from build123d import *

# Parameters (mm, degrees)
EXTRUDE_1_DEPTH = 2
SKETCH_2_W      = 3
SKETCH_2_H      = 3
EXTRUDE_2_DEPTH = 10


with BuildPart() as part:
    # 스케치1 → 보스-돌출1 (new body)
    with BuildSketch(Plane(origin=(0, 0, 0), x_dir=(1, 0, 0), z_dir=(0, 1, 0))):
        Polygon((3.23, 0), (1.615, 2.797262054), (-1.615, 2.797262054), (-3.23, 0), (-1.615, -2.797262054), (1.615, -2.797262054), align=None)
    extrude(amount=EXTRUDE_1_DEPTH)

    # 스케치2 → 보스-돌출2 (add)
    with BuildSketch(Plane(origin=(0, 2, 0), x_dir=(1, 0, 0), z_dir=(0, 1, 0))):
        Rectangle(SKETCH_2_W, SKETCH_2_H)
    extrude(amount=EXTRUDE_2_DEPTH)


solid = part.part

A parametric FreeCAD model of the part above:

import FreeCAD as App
import Part
import Sketcher

V = App.Vector
Q = App.Units.Quantity

doc = App.newDocument("Part")
params = doc.addObject("Spreadsheet::Sheet", "Params")
for row, (alias, value) in enumerate([
    ("sketch1_width", "3.23 mm"),
    ("sketch1_length", "3.23 mm"),
    ("pad1_length", "2 mm"),
    ("sketch2_width", "3 mm"),
    ("pad2_length", "10 mm"),
], start=1):
    params.set(f"A{row}", alias)
    params.set(f"B{row}", "=" + value)
    params.setAlias(f"B{row}", alias)

body = doc.addObject("PartDesign::Body", "Body")

sketch1 = doc.addObject("Sketcher::SketchObject", "Sketch")
body.addObject(sketch1)
sketch1.AttachmentSupport = (doc.XZ_Plane, [""])
sketch1.MapMode = "FlatFace"
sketch1.addGeometry([
    Part.LineSegment(V(3.23, 0, 0), V(1.615, -2.797262, 0)),
    Part.LineSegment(V(1.615, -2.797262, 0), V(-1.615, -2.797262, 0)),
    Part.LineSegment(V(-1.615, -2.797262, 0), V(-3.23, 0, 0)),
    Part.LineSegment(V(-3.23, 0, 0), V(-1.615, 2.797262, 0)),
    Part.LineSegment(V(-1.615, 2.797262, 0), V(1.615, 2.797262, 0)),
    Part.LineSegment(V(1.615, 2.797262, 0), V(3.23, 0, 0)),
], False)
sketch1.addConstraint([
    Sketcher.Constraint("Coincident", 0, 2, 1, 1),
    Sketcher.Constraint("Coincident", 1, 2, 2, 1),
    Sketcher.Constraint("Coincident", 2, 2, 3, 1),
    Sketcher.Constraint("Coincident", 3, 2, 4, 1),
    Sketcher.Constraint("Coincident", 4, 2, 5, 1),
    Sketcher.Constraint("Coincident", 5, 2, 0, 1),
    Sketcher.Constraint("Horizontal", 1),
    Sketcher.Constraint("Horizontal", 4),
    Sketcher.Constraint("Symmetric", 0, 2, 3, 2, -1, 1),
    Sketcher.Constraint("Symmetric", 2, 2, 5, 2, -1, 1),
    Sketcher.Constraint("PointOnObject", 2, 2, -1),
    Sketcher.Constraint("Parallel", 2, 5),
    Sketcher.Constraint("Vertical", 1, 2, 3, 2),
    Sketcher.Constraint("Angle", 0, Q("-120 deg")),
    Sketcher.Constraint("DistanceX", 1, 2, 1, 1, 3.23),
    Sketcher.Constraint("Distance", 0, 3.23),
])
sketch1.setExpression("Constraints[14]", "Params.sketch1_width")
sketch1.setExpression("Constraints[15]", "Params.sketch1_length")
pad1 = doc.addObject("PartDesign::Pad", "Pad")
body.addObject(pad1)
pad1.Profile = sketch1
pad1.setExpression("Length", "Params.pad1_length")
pad1.Reversed = True

sketch2 = doc.addObject("Sketcher::SketchObject", "Sketch001")
body.addObject(sketch2)
sketch2.AttachmentSupport = (doc.XZ_Plane, [""])
sketch2.MapMode = "FlatFace"
sketch2.AttachmentOffset = App.Placement(V(0, 0, -2), App.Rotation())
sketch2.addGeometry([
    Part.LineSegment(V(-1.5, -1.5, 0), V(-1.5, 1.5, 0)),
    Part.LineSegment(V(-1.5, 1.5, 0), V(1.5, 1.5, 0)),
    Part.LineSegment(V(1.5, 1.5, 0), V(1.5, -1.5, 0)),
    Part.LineSegment(V(1.5, -1.5, 0), V(-1.5, -1.5, 0)),
], False)
sketch2.addConstraint([
    Sketcher.Constraint("Coincident", 0, 2, 1, 1),
    Sketcher.Constraint("Coincident", 1, 2, 2, 1),
    Sketcher.Constraint("Coincident", 2, 2, 3, 1),
    Sketcher.Constraint("Coincident", 3, 2, 0, 1),
    Sketcher.Constraint("Vertical", 0),
    Sketcher.Constraint("Horizontal", 1),
    Sketcher.Constraint("Vertical", 2),
    Sketcher.Constraint("Horizontal", 3),
    Sketcher.Constraint("Symmetric", 0, 2, 2, 2, -1, 1),
    Sketcher.Constraint("Equal", 3, 0),
    Sketcher.Constraint("DistanceX", 1, 1, 1, 2, 3.0),
])
sketch2.setExpression("Constraints[10]", "Params.sketch2_width")
pad2 = doc.addObject("PartDesign::Pad", "Pad001")
body.addObject(pad2)
pad2.Profile = sketch2
pad2.setExpression("Length", "Params.pad2_length")
pad2.Reversed = True

doc.recompute()
